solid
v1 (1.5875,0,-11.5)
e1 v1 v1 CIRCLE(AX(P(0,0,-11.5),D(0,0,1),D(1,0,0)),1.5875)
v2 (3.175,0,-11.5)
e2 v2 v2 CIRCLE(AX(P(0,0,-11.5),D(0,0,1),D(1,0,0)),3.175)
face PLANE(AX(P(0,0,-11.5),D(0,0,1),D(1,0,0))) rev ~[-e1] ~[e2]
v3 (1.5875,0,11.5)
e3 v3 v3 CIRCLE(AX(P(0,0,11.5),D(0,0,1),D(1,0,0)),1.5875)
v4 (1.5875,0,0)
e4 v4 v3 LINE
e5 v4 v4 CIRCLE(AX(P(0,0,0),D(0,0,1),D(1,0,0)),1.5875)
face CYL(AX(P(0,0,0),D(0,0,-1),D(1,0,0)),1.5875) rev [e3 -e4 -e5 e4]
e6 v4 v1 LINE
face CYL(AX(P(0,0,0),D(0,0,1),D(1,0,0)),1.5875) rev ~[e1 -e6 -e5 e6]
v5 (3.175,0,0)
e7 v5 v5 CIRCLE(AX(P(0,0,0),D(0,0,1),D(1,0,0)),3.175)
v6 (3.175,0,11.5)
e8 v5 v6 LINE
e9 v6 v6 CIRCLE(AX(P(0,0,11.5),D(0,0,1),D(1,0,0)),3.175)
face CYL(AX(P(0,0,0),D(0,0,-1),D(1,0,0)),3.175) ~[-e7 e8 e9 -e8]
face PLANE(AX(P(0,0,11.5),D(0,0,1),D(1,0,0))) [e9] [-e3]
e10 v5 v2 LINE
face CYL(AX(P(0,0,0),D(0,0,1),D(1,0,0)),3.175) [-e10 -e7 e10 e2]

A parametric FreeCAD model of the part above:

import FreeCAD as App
import Part
import Sketcher
Q = App.Units.Quantity

doc = App.newDocument("Part")
params = doc.addObject("Spreadsheet::Sheet", "Params")
for row, (alias, value) in enumerate([
    ("sketch1_diameter", "0.25 in"),
    ("sketch1_diameter2", "0.125 in"),
    ("pad1_length", "0.9055118 in"),
], start=1):
    params.set(f"A{row}", alias)
    params.set(f"B{row}", "=" + value)
    params.setAlias(f"B{row}", alias)

body = doc.addObject("PartDesign::Body", "Body")

# Sketch on XY plane
sketch1 = body.newObject("Sketcher::SketchObject", "Sketch")
sketch1.AttachmentSupport = (doc.getObject("XY_Plane"), [""])
sketch1.MapMode = "FlatFace"
sketch1.addGeometry([
    Part.Circle(App.Vector(0, 0, 0), App.Vector(0, 0, 1), 3.2),
    Part.Circle(App.Vector(0, 0, 0), App.Vector(0, 0, 1), 1.6),
], False)
sketch1.addConstraint([
    Sketcher.Constraint("Coincident", 0, 3, -1, 1),
    Sketcher.Constraint("Coincident", 1, 3, -1, 1),
    Sketcher.Constraint("Diameter", 0, Q("0.25 in")),
    Sketcher.Constraint("Diameter", 1, Q("0.125 in")),
])
sketch1.setExpression("Constraints[2]", "Params.sketch1_diameter")
sketch1.setExpression("Constraints[3]", "Params.sketch1_diameter2")
pad1 = body.newObject("PartDesign::Pad", "Pad")
pad1.Profile = sketch1
pad1.setExpression("Length", "Params.pad1_length")
pad1.Midplane = True

doc.recompute()
